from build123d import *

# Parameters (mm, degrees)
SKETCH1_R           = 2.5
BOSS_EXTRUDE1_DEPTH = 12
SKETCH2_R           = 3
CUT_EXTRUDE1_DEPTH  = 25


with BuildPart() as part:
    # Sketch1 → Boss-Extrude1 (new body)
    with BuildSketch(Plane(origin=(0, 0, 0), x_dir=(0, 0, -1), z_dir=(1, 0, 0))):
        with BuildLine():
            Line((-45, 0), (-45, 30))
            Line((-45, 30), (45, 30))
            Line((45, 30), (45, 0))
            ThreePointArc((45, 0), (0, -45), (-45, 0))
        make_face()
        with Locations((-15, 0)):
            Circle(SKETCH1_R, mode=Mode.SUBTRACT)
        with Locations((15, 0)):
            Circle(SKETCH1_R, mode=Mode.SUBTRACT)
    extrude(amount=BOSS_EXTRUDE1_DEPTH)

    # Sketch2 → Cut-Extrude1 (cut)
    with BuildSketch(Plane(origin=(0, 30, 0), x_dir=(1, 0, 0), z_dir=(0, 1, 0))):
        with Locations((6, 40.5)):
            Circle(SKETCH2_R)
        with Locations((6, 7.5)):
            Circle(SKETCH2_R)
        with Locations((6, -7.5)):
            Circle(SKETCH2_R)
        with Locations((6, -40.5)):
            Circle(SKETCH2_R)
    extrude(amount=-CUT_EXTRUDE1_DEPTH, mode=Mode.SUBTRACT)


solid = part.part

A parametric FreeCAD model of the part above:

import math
import FreeCAD as App
import Part
import Sketcher

doc = App.newDocument("Part")
body = doc.addObject("PartDesign::Body", "Body")

# Sketch on YZ plane
sketch1 = body.newObject("Sketcher::SketchObject", "Sketch")
sketch1.AttachmentSupport = (doc.getObject("YZ_Plane"), [""])
sketch1.MapMode = "FlatFace"
sketch1.addGeometry([
    Part.LineSegment(App.Vector(30, 45, 0), App.Vector(0, 45, 0)),  # 0
    Part.ArcOfCircle(Part.Circle(App.Vector(0, 0, 0), App.Vector(0, 0, 1), 45), math.radians(90), math.radians(270)),  # 1
    Part.LineSegment(App.Vector(0, -45, 0), App.Vector(30, -45, 0)),  # 2
    Part.LineSegment(App.Vector(30, -45, 0), App.Vector(30, 45, 0)),  # 3
    Part.Circle(App.Vector(0, -15, 0), App.Vector(0, 0, 1), 2.5),  # 4
    Part.Circle(App.Vector(0, 15, 0), App.Vector(0, 0, 1), 2.5),  # 5
], False)
sketch1.addConstraint([
    Sketcher.Constraint("Tangent", 0, 2, 1, 1),
    Sketcher.Constraint("Tangent", 1, 2, 2, 1),
    Sketcher.Constraint("Coincident", 2, 2, 3, 1),
    Sketcher.Constraint("Coincident", 3, 2, 0, 1),
    Sketcher.Constraint("Horizontal", 0),
    Sketcher.Constraint("Horizontal", 2),
    Sketcher.Constraint("Vertical", 3),
    Sketcher.Constraint("Coincident", 1, 3, -1, 1),
    Sketcher.Constraint("Equal", 4, 5),
    Sketcher.Constraint("Symmetric", 4, 3, 5, 3, -1, 1),
    Sketcher.Constraint("PointOnObject", 4, 3, -2),
    Sketcher.Constraint("Diameter", 4, 5.0),
    Sketcher.Constraint("Radius", 1, 45.0),
    Sketcher.Constraint("DistanceX", 0, 2, 0, 1, 30.0),
    Sketcher.Constraint("DistanceY", 4, 3, -1, 1, 15.0),
])
pad1 = body.newObject("PartDesign::Pad", "Pad")
pad1.Profile = sketch1
pad1.Length = 12

# Sketch on XZ plane
sketch2 = body.newObject("Sketcher::SketchObject", "Sketch001")
sketch2.AttachmentSupport = (doc.getObject("XZ_Plane"), [""])
sketch2.MapMode = "FlatFace"
sketch2.AttachmentOffset = App.Placement(App.Vector(0, 0, -30), App.Rotation())
sketch2.addGeometry([
    Part.Circle(App.Vector(6, -40.5, 0), App.Vector(0, 0, 1), 3),
    Part.Circle(App.Vector(6, -7.5, 0), App.Vector(0, 0, 1), 3),
    Part.Circle(App.Vector(6, 7.5, 0), App.Vector(0, 0, 1), 3),
    Part.Circle(App.Vector(6, 40.5, 0), App.Vector(0, 0, 1), 3),
], False)
sketch2.addConstraint([
    Sketcher.Constraint("Equal", 0, 1),
    Sketcher.Constraint("Equal", 1, 2),
    Sketcher.Constraint("Equal", 2, 3),
    Sketcher.Constraint("Symmetric", 1, 3, 2, 3, -1),
    Sketcher.Constraint("Symmetric", 0, 3, 3, 3, -1),
    Sketcher.Constraint("Vertical", 0, 3, 1, 3),
    Sketcher.Constraint("Diameter", 0, 6.0),
    Sketcher.Constraint("DistanceX", -1, 1, 0, 3, 6.0),
    Sketcher.Constraint("DistanceY", 0, 3, 1, 3, 33.0),
    Sketcher.Constraint("DistanceY", 1, 3, 2, 3, 15.0),
])
pocket1 = body.newObject("PartDesign::Pocket", "Pocket")
pocket1.Profile = sketch2
pocket1.Length = 25
pocket1.Reversed = True

doc.recompute()
